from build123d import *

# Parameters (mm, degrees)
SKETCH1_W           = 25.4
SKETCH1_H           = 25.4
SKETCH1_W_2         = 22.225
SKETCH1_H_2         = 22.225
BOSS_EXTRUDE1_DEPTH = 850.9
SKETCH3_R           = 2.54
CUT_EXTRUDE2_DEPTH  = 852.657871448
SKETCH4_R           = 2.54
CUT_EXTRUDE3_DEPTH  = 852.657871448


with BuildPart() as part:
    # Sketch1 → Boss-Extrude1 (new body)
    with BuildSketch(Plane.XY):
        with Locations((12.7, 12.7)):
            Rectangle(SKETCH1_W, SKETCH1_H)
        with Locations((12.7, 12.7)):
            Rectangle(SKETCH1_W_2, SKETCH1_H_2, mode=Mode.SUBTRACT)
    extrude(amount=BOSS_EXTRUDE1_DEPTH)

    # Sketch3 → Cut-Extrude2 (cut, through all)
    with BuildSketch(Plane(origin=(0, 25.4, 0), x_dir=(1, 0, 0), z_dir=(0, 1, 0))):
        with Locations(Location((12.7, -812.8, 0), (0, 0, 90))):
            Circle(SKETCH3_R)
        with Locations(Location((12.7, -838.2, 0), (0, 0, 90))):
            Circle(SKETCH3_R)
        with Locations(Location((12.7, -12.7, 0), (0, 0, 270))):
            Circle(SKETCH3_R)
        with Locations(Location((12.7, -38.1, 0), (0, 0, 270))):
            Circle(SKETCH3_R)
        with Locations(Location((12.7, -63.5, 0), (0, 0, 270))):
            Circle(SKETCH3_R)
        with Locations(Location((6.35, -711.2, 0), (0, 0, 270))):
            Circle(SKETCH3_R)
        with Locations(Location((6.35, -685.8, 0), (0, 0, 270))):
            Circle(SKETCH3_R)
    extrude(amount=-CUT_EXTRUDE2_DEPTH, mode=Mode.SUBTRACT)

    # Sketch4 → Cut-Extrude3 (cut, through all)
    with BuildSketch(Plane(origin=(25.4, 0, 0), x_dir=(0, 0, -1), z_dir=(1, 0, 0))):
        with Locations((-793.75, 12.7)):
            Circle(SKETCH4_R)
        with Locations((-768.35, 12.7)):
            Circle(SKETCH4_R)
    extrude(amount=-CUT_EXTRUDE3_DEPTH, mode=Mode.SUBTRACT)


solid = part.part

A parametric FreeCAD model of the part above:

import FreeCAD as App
import Part
import Sketcher
from FreeCAD import Vector
Q = App.Units.Quantity

doc = App.newDocument("Part")
body = doc.addObject("PartDesign::Body", "Body")

sketch1 = doc.addObject("Sketcher::SketchObject", "Sketch")
body.addObject(sketch1)
sketch1.AttachmentSupport = (doc.XY_Plane, [""])
sketch1.MapMode = "FlatFace"
sketch1.addGeometry(Part.LineSegment(Vector(0, 25, 0), Vector(0, 0, 0)), False)
sketch1.addGeometry(Part.LineSegment(Vector(0, 0, 0), Vector(25, 0, 0)), False)
sketch1.addGeometry(Part.LineSegment(Vector(25, 0, 0), Vector(25, 25, 0)), False)
sketch1.addGeometry(Part.LineSegment(Vector(25, 25, 0), Vector(0, 25, 0)), False)
sketch1.addGeometry(Part.LineSegment(Vector(24, 2, 0), Vector(2, 2, 0)), False)
sketch1.addGeometry(Part.LineSegment(Vector(2, 2, 0), Vector(2, 24, 0)), False)
sketch1.addGeometry(Part.LineSegment(Vector(2, 24, 0), Vector(24, 24, 0)), False)
sketch1.addGeometry(Part.LineSegment(Vector(24, 24, 0), Vector(24, 2, 0)), False)
sketch1.addConstraint(Sketcher.Constraint("Coincident", 0, 2, 1, 1))
sketch1.addConstraint(Sketcher.Constraint("Coincident", 1, 2, 2, 1))
sketch1.addConstraint(Sketcher.Constraint("Coincident", 2, 2, 3, 1))
sketch1.addConstraint(Sketcher.Constraint("Coincident", 3, 2, 0, 1))
sketch1.addConstraint(Sketcher.Constraint("Coincident", 4, 2, 5, 1))
sketch1.addConstraint(Sketcher.Constraint("Coincident", 5, 2, 6, 1))
sketch1.addConstraint(Sketcher.Constraint("Coincident", 6, 2, 7, 1))
sketch1.addConstraint(Sketcher.Constraint("Coincident", 7, 2, 4, 1))
sketch1.addConstraint(Sketcher.Constraint("Vertical", 0))
sketch1.addConstraint(Sketcher.Constraint("Horizontal", 1))
sketch1.addConstraint(Sketcher.Constraint("Vertical", 2))
sketch1.addConstraint(Sketcher.Constraint("Horizontal", 3))
sketch1.addConstraint(Sketcher.Constraint("Horizontal", 4))
sketch1.addConstraint(Sketcher.Constraint("Vertical", 5))
sketch1.addConstraint(Sketcher.Constraint("Horizontal", 6))
sketch1.addConstraint(Sketcher.Constraint("Vertical", 7))
sketch1.addConstraint(Sketcher.Constraint("Coincident", 0, 2, -1, 1))
sketch1.addConstraint(Sketcher.Constraint("Equal", 3, 0))
sketch1.addConstraint(Sketcher.Constraint("Equal", 6, 5))
sketch1.addConstraint(Sketcher.Constraint("DistanceX", 1, 1, 1, 2, Q("1 in")))
sketch1.addConstraint(Sketcher.Constraint("DistanceX", 4, 2, 4, 1, Q("0.875 in")))
sketch1.addConstraint(Sketcher.Constraint("DistanceX", -1, 1, 4, 2, Q("0.0625 in")))
sketch1.addConstraint(Sketcher.Constraint("DistanceY", -1, 1, 4, 2, Q("0.0625 in")))
pad1 = doc.addObject("PartDesign::Pad", "Pad")
body.addObject(pad1)
pad1.Profile = sketch1
pad1.Length = Q("33.5 in")

sketch2 = doc.addObject("Sketcher::SketchObject", "Sketch001")
body.addObject(sketch2)
sketch2.AttachmentSupport = (doc.XZ_Plane, [""])
sketch2.MapMode = "FlatFace"
sketch2.AttachmentOffset = App.Placement(Vector(0, 0, -1 * 25.4), App.Rotation())
sketch2.addGeometry(Part.Circle(Vector(12.7, 812.8, 0), Vector(0, 0, 1), 2.5), False)
sketch2.addGeometry(Part.Circle(Vector(12.7, 838.2, 0), Vector(0, 0, 1), 2.5), False)
sketch2.addGeometry(Part.Circle(Vector(12.7, 12.7, 0), Vector(0, 0, 1), 2.5), False)
sketch2.addGeometry(Part.Circle(Vector(12.7, 38.1, 0), Vector(0, 0, 1), 2.5), False)
sketch2.addGeometry(Part.Circle(Vector(12.7, 63.5, 0), Vector(0, 0, 1), 2.5), False)
sketch2.addGeometry(Part.Circle(Vector(6.3, 711.2, 0), Vector(0, 0, 1), 2.5), False)
sketch2.addGeometry(Part.Circle(Vector(6.3, 685.8, 0), Vector(0, 0, 1), 2.5), False)
sketch2.addConstraint(Sketcher.Constraint("Equal", 0, 1))
sketch2.addConstraint(Sketcher.Constraint("Equal", 1, 2))
sketch2.addConstraint(Sketcher.Constraint("Equal", 2, 3))
sketch2.addConstraint(Sketcher.Constraint("Equal", 3, 4))
sketch2.addConstraint(Sketcher.Constraint("Equal", 4, 5))
sketch2.addConstraint(Sketcher.Constraint("Equal", 5, 6))
sketch2.addConstraint(Sketcher.Constraint("Vertical", 0, 3, 1, 3))
sketch2.addConstraint(Sketcher.Constraint("Vertical", 1, 3, 2, 3))
sketch2.addConstraint(Sketcher.Constraint("Vertical", 2, 3, 3, 3))
sketch2.addConstraint(Sketcher.Constraint("Vertical", 3, 3, 4, 3))
sketch2.addConstraint(Sketcher.Constraint("Vertical", 5, 3, 6, 3))
sketch2.addConstraint(Sketcher.Constraint("Diameter", 0, Q("0.2 in")))
sketch2.addConstraint(Sketcher.Constraint("DistanceY", -1, 1, 0, 3, Q("32 in")))
sketch2.addConstraint(Sketcher.Constraint("DistanceY", -1, 1, 1, 3, Q("33 in")))
sketch2.addConstraint(Sketcher.Constraint("DistanceY", -1, 1, 5, 3, Q("28 in")))
sketch2.addConstraint(Sketcher.Constraint("DistanceY", -1, 1, 6, 3, Q("27 in")))
sketch2.addConstraint(Sketcher.Constraint("DistanceY", 2, 3, 3, 3, Q("1 in")))
sketch2.addConstraint(Sketcher.Constraint("DistanceY", 3, 3, 4, 3, Q("1 in")))
sketch2.addConstraint(Sketcher.Constraint("DistanceX", -1, 1, 0, 3, Q("0.5 in")))
sketch2.addConstraint(Sketcher.Constraint("DistanceY", -1, 1, 2, 3, Q("0.5 in")))
sketch2.addConstraint(Sketcher.Constraint("DistanceX", -1, 1, 5, 3, Q("0.25 in")))
pocket1 = doc.addObject("PartDesign::Pocket", "Pocket")
body.addObject(pocket1)
pocket1.Profile = sketch2
pocket1.Type = "ThroughAll"
pocket1.Reversed = True

sketch3 = doc.addObject("Sketcher::SketchObject", "Sketch002")
body.addObject(sketch3)
sketch3.AttachmentSupport = (doc.YZ_Plane, [""])
sketch3.MapMode = "FlatFace"
sketch3.AttachmentOffset = App.Placement(Vector(0, 0, 1 * 25.4), App.Rotation())
sketch3.addGeometry(Part.Circle(Vector(12.7, 793.8, 0), Vector(0, 0, 1), 2.5), False)
sketch3.addGeometry(Part.Circle(Vector(12.7, 768.4, 0), Vector(0, 0, 1), 2.5), False)
sketch3.addConstraint(Sketcher.Constraint("Equal", 0, 1))
sketch3.addConstraint(Sketcher.Constraint("Vertical", 0, 3, 1, 3))
sketch3.addConstraint(Sketcher.Constraint("Diameter", 0, Q("0.2 in")))
sketch3.addConstraint(Sketcher.Constraint("DistanceY", 1, 3, 0, 3, Q("1 in")))
sketch3.addConstraint(Sketcher.Constraint("DistanceX", -1, 1, 0, 3, Q("0.5 in")))
sketch3.addConstraint(Sketcher.Constraint("DistanceY", -1, 1, 0, 3, Q("31.25 in")))
pocket2 = doc.addObject("PartDesign::Pocket", "Pocket001")
body.addObject(pocket2)
pocket2.Profile = sketch3
pocket2.Type = "ThroughAll"

doc.recompute()
